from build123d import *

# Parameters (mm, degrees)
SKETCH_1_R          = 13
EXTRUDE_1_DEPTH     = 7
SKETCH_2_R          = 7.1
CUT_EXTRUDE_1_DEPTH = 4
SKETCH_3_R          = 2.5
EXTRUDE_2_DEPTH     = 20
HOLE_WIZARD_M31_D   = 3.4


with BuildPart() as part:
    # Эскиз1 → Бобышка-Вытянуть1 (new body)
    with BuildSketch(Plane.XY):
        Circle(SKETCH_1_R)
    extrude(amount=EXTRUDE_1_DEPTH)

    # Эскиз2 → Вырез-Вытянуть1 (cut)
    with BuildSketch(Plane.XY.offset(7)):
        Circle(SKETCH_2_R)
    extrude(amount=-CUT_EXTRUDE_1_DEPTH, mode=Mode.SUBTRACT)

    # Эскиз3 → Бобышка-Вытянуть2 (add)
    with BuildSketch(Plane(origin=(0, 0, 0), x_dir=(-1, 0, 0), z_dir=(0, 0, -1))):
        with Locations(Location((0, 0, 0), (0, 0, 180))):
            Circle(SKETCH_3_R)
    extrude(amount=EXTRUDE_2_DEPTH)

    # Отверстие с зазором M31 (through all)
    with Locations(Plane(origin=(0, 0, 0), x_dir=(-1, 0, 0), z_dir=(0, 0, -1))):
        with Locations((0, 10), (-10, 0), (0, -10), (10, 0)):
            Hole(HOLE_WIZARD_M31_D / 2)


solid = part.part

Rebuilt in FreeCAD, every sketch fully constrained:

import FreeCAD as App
import Part
import Sketcher
from FreeCAD import Vector
Q = App.Units.Quantity

doc = App.newDocument("Part")
body = doc.addObject("PartDesign::Body", "Body")

sketch1 = body.newObject("Sketcher::SketchObject", "Sketch")
sketch1.AttachmentSupport = (doc.getObject("XY_Plane"), [""])
sketch1.MapMode = "FlatFace"
sketch1.addGeometry(Part.Circle(Vector(0, 0, 0), Vector(0, 0, 1), 13), False)
sketch1.addConstraint([
    Sketcher.Constraint("Coincident", 0, 3, -1, 1),
    Sketcher.Constraint("Diameter", 0, Q("26 mm")),
])
pad1 = body.newObject("PartDesign::Pad", "Pad")
pad1.Profile = sketch1
pad1.Length = 7

sketch2 = body.newObject("Sketcher::SketchObject", "Sketch001")
sketch2.AttachmentSupport = (doc.getObject("XY_Plane"), [""])
sketch2.MapMode = "FlatFace"
sketch2.AttachmentOffset = App.Placement(Vector(0, 0, 7), App.Rotation())
sketch2.addGeometry(Part.Circle(Vector(0, 0, 0), Vector(0, 0, 1), 7), False)
sketch2.addConstraint([
    Sketcher.Constraint("Coincident", 0, 3, -1, 1),
    Sketcher.Constraint("Diameter", 0, Q("14.2 mm")),
])
pocket1 = body.newObject("PartDesign::Pocket", "Pocket")
pocket1.Profile = sketch2
pocket1.Length = 4

sketch3 = body.newObject("Sketcher::SketchObject", "Sketch002")
sketch3.AttachmentSupport = (doc.getObject("XY_Plane"), [""])
sketch3.MapMode = "FlatFace"
sketch3.addGeometry(Part.Circle(Vector(0, 0, 0), Vector(0, 0, 1), 2.5), False)
sketch3.addConstraint([
    Sketcher.Constraint("Coincident", 0, 3, -1, 1),
    Sketcher.Constraint("Diameter", 0, Q("5 mm")),
])
pad2 = body.newObject("PartDesign::Pad", "Pad001")
pad2.Profile = sketch3
pad2.Length = 20
pad2.Reversed = True

sketch4 = body.newObject("Sketcher::SketchObject", "Sketch003")
sketch4.AttachmentSupport = (doc.getObject("XY_Plane"), [""])
sketch4.MapMode = "FlatFace"
sketch4.addGeometry([
    Part.Circle(Vector(0, 10, 0), Vector(0, 0, 1), 1.7),
    Part.Circle(Vector(10, 0, 0), Vector(0, 0, 1), 1.7),
    Part.Circle(Vector(0, -10, 0), Vector(0, 0, 1), 1.7),
    Part.Circle(Vector(-10, 0, 0), Vector(0, 0, 1), 1.7),
], False)
sketch4.addConstraint([
    Sketcher.Constraint("Equal", 0, 1),
    Sketcher.Constraint("Equal", 1, 2),
    Sketcher.Constraint("Equal", 2, 3),
    Sketcher.Constraint("Symmetric", 0, 3, 2, 3, -1, 1),
    Sketcher.Constraint("Symmetric", 1, 3, 3, 3, -1, 1),
    Sketcher.Constraint("PointOnObject", 0, 3, -2),
    Sketcher.Constraint("PointOnObject", 1, 3, -1),
    Sketcher.Constraint("Diameter", 0, Q("3.4 mm")),
    Sketcher.Constraint("DistanceY", -1, 1, 0, 3, Q("10 mm")),
    Sketcher.Constraint("DistanceX", -1, 1, 1, 3, Q("10 mm")),
])
doc.recompute()
hole = body.newObject("PartDesign::Hole", "Hole")
hole.Profile = sketch4
hole.ThreadType = "None"
hole.Diameter = 3.4
hole.DepthType = "ThroughAll"
hole.Reversed = True

doc.recompute()
